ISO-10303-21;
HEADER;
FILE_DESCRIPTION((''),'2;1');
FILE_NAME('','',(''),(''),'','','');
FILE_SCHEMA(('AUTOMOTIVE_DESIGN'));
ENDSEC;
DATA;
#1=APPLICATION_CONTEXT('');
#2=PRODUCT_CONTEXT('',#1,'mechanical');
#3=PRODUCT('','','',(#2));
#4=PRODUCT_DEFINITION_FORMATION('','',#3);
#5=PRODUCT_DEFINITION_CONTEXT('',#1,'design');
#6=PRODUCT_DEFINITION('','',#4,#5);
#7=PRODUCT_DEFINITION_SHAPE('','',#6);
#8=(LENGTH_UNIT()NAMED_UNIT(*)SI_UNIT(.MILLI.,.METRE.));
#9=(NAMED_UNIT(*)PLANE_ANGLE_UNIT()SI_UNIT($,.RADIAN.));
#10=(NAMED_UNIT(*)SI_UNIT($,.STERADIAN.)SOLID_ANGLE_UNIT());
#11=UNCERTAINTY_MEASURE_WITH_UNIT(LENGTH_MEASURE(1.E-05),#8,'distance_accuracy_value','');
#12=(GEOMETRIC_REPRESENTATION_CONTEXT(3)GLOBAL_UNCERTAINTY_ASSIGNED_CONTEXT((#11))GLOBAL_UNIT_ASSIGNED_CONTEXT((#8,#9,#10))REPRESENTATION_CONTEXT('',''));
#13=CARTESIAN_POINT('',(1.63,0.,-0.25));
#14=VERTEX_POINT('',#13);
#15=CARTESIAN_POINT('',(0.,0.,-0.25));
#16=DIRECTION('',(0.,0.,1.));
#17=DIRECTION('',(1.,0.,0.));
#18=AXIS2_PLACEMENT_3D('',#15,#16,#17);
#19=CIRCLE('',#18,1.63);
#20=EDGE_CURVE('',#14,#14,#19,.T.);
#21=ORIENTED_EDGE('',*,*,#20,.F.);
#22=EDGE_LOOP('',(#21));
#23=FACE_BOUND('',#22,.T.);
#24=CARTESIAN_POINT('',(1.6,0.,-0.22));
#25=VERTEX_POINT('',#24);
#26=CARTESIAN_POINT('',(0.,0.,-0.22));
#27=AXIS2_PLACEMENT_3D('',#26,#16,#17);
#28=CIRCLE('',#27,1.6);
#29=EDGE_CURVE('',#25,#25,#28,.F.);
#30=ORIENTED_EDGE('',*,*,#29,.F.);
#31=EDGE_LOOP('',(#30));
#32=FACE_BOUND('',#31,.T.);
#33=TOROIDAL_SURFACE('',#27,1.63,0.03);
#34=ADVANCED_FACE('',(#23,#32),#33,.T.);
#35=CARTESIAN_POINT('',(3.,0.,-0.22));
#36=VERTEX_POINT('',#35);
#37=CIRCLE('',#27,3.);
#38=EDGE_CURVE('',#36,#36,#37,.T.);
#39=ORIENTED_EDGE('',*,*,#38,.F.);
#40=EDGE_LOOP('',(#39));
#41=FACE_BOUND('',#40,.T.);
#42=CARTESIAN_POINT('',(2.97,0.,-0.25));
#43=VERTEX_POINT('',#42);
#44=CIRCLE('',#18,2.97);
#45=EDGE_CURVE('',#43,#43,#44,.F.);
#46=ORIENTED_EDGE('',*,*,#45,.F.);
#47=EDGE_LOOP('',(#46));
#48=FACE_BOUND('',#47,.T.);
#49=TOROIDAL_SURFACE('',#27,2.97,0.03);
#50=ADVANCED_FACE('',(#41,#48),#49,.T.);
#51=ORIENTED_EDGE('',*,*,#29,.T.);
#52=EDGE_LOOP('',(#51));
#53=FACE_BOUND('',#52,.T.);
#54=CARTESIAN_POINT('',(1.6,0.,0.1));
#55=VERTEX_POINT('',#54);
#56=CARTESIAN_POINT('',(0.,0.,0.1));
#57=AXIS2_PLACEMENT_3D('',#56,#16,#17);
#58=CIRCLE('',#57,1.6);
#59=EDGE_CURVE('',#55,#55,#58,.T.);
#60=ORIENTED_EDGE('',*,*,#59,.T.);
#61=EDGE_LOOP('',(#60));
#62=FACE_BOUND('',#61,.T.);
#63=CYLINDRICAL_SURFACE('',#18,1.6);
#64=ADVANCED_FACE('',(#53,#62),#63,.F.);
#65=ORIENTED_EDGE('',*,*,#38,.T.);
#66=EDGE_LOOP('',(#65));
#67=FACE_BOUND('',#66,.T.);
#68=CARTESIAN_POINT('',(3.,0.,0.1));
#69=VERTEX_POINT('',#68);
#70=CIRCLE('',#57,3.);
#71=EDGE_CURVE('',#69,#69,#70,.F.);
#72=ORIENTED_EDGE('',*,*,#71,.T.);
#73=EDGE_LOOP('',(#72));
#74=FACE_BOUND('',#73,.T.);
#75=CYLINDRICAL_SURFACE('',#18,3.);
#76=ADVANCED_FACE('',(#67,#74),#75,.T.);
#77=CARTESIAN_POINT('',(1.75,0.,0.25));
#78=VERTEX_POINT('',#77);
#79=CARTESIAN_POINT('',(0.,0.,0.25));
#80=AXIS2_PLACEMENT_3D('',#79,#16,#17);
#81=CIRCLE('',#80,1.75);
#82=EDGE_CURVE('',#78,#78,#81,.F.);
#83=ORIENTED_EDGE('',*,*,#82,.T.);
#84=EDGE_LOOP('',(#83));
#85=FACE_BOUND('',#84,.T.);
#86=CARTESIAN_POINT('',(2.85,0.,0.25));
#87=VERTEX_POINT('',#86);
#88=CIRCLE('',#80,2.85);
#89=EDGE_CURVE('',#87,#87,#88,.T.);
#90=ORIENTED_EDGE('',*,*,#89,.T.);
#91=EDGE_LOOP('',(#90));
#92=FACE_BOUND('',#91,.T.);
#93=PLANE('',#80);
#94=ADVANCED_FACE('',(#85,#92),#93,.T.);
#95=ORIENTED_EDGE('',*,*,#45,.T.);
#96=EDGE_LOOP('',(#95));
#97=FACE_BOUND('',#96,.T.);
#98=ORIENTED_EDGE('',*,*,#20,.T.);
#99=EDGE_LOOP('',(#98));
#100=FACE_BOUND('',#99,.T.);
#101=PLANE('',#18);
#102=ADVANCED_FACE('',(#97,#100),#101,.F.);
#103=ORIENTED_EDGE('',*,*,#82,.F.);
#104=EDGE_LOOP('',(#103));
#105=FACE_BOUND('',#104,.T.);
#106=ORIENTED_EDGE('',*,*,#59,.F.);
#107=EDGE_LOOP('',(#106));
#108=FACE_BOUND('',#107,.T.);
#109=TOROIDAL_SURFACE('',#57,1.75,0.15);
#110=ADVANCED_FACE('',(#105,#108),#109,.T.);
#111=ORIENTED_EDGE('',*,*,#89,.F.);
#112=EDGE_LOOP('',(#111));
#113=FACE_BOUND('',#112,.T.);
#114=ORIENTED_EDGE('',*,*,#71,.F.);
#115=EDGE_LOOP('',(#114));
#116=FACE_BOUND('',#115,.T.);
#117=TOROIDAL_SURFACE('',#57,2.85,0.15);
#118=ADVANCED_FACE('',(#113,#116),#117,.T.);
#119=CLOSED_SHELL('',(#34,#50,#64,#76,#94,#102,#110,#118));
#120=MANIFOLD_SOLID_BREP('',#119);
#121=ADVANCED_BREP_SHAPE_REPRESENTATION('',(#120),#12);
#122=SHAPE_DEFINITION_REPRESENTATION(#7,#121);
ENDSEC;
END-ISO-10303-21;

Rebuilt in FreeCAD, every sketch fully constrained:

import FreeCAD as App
import Part
import Sketcher


def edges_at(feature, points):
    """Names of the edges that pass closest to the given points."""
    edges = feature.Shape.Edges
    near = lambda p: min(range(len(edges)), key=lambda i: edges[i].distToShape(Part.Vertex(*p))[0])
    return sorted({f"Edge{near(p) + 1}" for p in points})

doc = App.newDocument("Part")
body = doc.addObject("PartDesign::Body", "Body")

sketch1 = body.newObject("Sketcher::SketchObject", "Sketch")
sketch1.AttachmentSupport = (doc.getObject("XY_Plane"), [""])
sketch1.MapMode = "FlatFace"
sketch1.addGeometry([
    Part.Circle(App.Vector(0, 0, 0), App.Vector(0, 0, 1), 3),
    Part.Circle(App.Vector(0, 0, 0), App.Vector(0, 0, 1), 1.6),
], False)
sketch1.addConstraint([
    Sketcher.Constraint("Coincident", 0, 3, -1, 1),
    Sketcher.Constraint("Coincident", 1, 3, -1, 1),
    Sketcher.Constraint("Diameter", 0, 6.0),
    Sketcher.Constraint("Diameter", 1, 3.2),
])
pad1 = body.newObject("PartDesign::Pad", "Pad")
pad1.Profile = sketch1
pad1.Type = "TwoLengths"
pad1.Length = 0.25
pad1.Length2 = 0.25
doc.recompute()

fillet = body.newObject("PartDesign::Fillet", "Fillet")
fillet.Base = (pad1, edges_at(pad1, [(-3, 0, 0.25), (-1.6, 0, 0.25)]))
fillet.Radius = 0.15
doc.recompute()

fillet2 = body.newObject("PartDesign::Fillet", "Fillet001")
fillet2.Base = (fillet, edges_at(fillet, [(-3, 0, -0.25), (-1.6, 0, -0.25)]))
fillet2.Radius = 0.03

doc.recompute()
